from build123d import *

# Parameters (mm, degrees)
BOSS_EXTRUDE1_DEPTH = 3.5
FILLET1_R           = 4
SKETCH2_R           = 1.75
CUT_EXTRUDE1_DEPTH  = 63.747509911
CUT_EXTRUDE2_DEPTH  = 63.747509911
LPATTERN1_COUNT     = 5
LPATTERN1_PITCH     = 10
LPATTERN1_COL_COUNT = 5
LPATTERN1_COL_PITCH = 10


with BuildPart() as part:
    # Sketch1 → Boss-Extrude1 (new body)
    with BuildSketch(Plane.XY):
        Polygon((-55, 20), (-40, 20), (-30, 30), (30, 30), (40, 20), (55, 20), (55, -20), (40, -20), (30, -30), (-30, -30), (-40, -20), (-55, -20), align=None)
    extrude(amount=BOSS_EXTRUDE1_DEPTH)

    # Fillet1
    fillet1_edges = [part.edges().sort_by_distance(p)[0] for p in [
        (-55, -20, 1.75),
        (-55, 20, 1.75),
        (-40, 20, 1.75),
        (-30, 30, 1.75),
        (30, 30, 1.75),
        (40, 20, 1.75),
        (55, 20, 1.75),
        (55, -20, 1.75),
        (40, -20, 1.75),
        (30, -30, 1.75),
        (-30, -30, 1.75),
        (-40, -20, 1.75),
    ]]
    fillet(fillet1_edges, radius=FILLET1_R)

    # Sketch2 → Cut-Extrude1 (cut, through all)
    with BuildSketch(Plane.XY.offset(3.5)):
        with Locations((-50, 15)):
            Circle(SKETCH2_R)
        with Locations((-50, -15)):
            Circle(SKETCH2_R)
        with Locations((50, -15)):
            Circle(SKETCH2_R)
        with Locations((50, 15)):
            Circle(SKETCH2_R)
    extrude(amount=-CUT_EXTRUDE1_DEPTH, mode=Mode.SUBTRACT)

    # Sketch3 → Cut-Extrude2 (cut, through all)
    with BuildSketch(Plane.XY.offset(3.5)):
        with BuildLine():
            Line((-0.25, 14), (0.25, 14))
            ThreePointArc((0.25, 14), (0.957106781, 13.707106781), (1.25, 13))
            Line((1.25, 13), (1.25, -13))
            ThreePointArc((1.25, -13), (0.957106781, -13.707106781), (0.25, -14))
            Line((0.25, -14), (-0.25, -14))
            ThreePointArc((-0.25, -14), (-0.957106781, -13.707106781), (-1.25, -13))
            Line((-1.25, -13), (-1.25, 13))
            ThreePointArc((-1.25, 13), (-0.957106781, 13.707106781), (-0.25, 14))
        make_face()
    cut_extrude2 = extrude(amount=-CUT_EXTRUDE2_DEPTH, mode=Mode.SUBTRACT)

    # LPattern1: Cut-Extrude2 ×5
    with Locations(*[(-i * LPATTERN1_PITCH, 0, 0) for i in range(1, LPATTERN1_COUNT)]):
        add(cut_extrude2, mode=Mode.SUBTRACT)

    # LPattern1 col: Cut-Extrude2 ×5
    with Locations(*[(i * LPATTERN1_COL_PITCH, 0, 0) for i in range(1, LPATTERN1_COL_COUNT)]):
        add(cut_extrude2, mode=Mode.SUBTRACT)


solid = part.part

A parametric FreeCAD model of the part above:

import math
import FreeCAD as App
import Part
import Sketcher
Q = App.Units.Quantity


def edges_at(feature, points):
    """Names of the edges that pass closest to the given points."""
    edges = feature.Shape.Edges
    near = lambda p: min(range(len(edges)), key=lambda i: edges[i].distToShape(Part.Vertex(*p))[0])
    return sorted({f"Edge{near(p) + 1}" for p in points})


def add_polygon(sketch, points):
    """Adds a closed chain of lines whose ends are joined by coincident constraints."""
    first, n = sketch.GeometryCount, len(points)
    for a, b in zip(points, points[1:] + points[:1]):
        sketch.addGeometry(Part.LineSegment(App.Vector(*a, 0), App.Vector(*b, 0)), False)
    for i in range(n):
        sketch.addConstraint(Sketcher.Constraint("Coincident", first + i, 2, first + (i + 1) % n, 1))

doc = App.newDocument("Part")
body = doc.addObject("PartDesign::Body", "Body")

# Sketch on XY plane
sketch1 = body.newObject("Sketcher::SketchObject", "Sketch")
sketch1.AttachmentSupport = (doc.getObject("XY_Plane"), [""])
sketch1.MapMode = "FlatFace"
add_polygon(sketch1, [(-40, 20), (-55, 20), (-55, -20), (-40, -20), (-30, -30), (30, -30), (40, -20), (55, -20), (55, 20), (40, 20), (30, 30), (-30, 30)])  # lines 0-11
sketch1.addConstraint(Sketcher.Constraint("Horizontal", 0))
sketch1.addConstraint(Sketcher.Constraint("Vertical", 1))
sketch1.addConstraint(Sketcher.Constraint("Horizontal", 2))
sketch1.addConstraint(Sketcher.Constraint("Horizontal", 4))
sketch1.addConstraint(Sketcher.Constraint("Horizontal", 6))
sketch1.addConstraint(Sketcher.Constraint("Vertical", 7))
sketch1.addConstraint(Sketcher.Constraint("Horizontal", 8))
sketch1.addConstraint(Sketcher.Constraint("Horizontal", 10))
sketch1.addConstraint(Sketcher.Constraint("Symmetric", 0, 2, 6, 2, -1, 1))
sketch1.addConstraint(Sketcher.Constraint("Symmetric", 2, 2, 8, 2, -1, 1))
sketch1.addConstraint(Sketcher.Constraint("Symmetric", 3, 2, 9, 2, -1, 1))
sketch1.addConstraint(Sketcher.Constraint("Symmetric", 2, 2, 5, 2, -2))
sketch1.addConstraint(Sketcher.Constraint("Perpendicular", 3, 5))
sketch1.addConstraint(Sketcher.Constraint("Perpendicular", 9, 11))
sketch1.addConstraint(Sketcher.Constraint("Vertical", 4, 2, 9, 2))
sketch1.addConstraint(Sketcher.Constraint("Vertical", 3, 2, 10, 2))
sketch1.addConstraint(Sketcher.Constraint("DistanceX", 0, 2, 0, 1, Q("15 mm")))
sketch1.addConstraint(Sketcher.Constraint("DistanceX", 4, 1, 4, 2, Q("60 mm")))
sketch1.addConstraint(Sketcher.Constraint("DistanceY", 1, 2, 1, 1, Q("40 mm")))
sketch1.addConstraint(Sketcher.Constraint("DistanceX", 0, 2, -1, 1, Q("55 mm")))
pad1 = body.newObject("PartDesign::Pad", "Pad")
pad1.Profile = sketch1
pad1.Length = 3.5
doc.recompute()

fillet = body.newObject("PartDesign::Fillet", "Fillet")
fillet.Base = (pad1, edges_at(pad1, [
    (-55, -20, 1.75),
    (-55, 20, 1.75),
    (-40, 20, 1.75),
    (-30, 30, 1.75),
    (30, 30, 1.75),
    (40, 20, 1.75),
    (55, 20, 1.75),
    (55, -20, 1.75),
    (40, -20, 1.75),
    (30, -30, 1.75),
    (-30, -30, 1.75),
    (-40, -20, 1.75),
]))
fillet.Radius = 4

# Sketch on XY plane
sketch2 = body.newObject("Sketcher::SketchObject", "Sketch001")
sketch2.AttachmentSupport = (doc.getObject("XY_Plane"), [""])
sketch2.MapMode = "FlatFace"
sketch2.AttachmentOffset = App.Placement(App.Vector(0, 0, 3.5), App.Rotation())
sketch2.addGeometry(Part.Circle(App.Vector(-50, 15, 0), App.Vector(0, 0, 1), 1.8), False)
sketch2.addGeometry(Part.Circle(App.Vector(-50, -15, 0), App.Vector(0, 0, 1), 1.8), False)
sketch2.addGeometry(Part.Circle(App.Vector(50, -15, 0), App.Vector(0, 0, 1), 1.8), False)
sketch2.addGeometry(Part.Circle(App.Vector(50, 15, 0), App.Vector(0, 0, 1), 1.8), False)
sketch2.addConstraint(Sketcher.Constraint("Equal", 0, 1))
sketch2.addConstraint(Sketcher.Constraint("Equal", 1, 2))
sketch2.addConstraint(Sketcher.Constraint("Equal", 2, 3))
sketch2.addConstraint(Sketcher.Constraint("Symmetric", 0, 3, 2, 3, -1, 1))
sketch2.addConstraint(Sketcher.Constraint("Symmetric", 1, 3, 3, 3, -1, 1))
sketch2.addConstraint(Sketcher.Constraint("Symmetric", 1, 3, 2, 3, -2))
sketch2.addConstraint(Sketcher.Constraint("Diameter", 0, Q("3.5 mm")))
sketch2.addConstraint(Sketcher.Constraint("DistanceX", 0, 3, -1, 1, Q("50 mm")))
sketch2.addConstraint(Sketcher.Constraint("DistanceY", -1, 1, 0, 3, Q("15 mm")))
pocket1 = body.newObject("PartDesign::Pocket", "Pocket")
pocket1.Profile = sketch2
pocket1.Type = "ThroughAll"

# Sketch on XY plane
sketch3 = body.newObject("Sketcher::SketchObject", "Sketch002")
sketch3.AttachmentSupport = (doc.getObject("XY_Plane"), [""])
sketch3.MapMode = "FlatFace"
sketch3.AttachmentOffset = App.Placement(App.Vector(0, 0, 3.5), App.Rotation())
sketch3.addGeometry(Part.LineSegment(App.Vector(0.2, 14, 0), App.Vector(-0.2, 14, 0)), False)
sketch3.addGeometry(Part.ArcOfCircle(Part.Circle(App.Vector(-0.2, 13, 0), App.Vector(0, 0, 1), 1), math.radians(90), math.radians(180)), False)
sketch3.addGeometry(Part.LineSegment(App.Vector(-1.2, 13, 0), App.Vector(-1.2, -13, 0)), False)
sketch3.addGeometry(Part.ArcOfCircle(Part.Circle(App.Vector(-0.2, -13, 0), App.Vector(0, 0, 1), 1), math.radians(-180), math.radians(-90)), False)
sketch3.addGeometry(Part.LineSegment(App.Vector(-0.2, -14, 0), App.Vector(0.2, -14, 0)), False)
sketch3.addGeometry(Part.ArcOfCircle(Part.Circle(App.Vector(0.2, -13, 0), App.Vector(0, 0, 1), 1), math.radians(-90), math.radians(0)), False)
sketch3.addGeometry(Part.LineSegment(App.Vector(1.2, -13, 0), App.Vector(1.2, 13, 0)), False)
sketch3.addGeometry(Part.ArcOfCircle(Part.Circle(App.Vector(0.2, 13, 0), App.Vector(0, 0, 1), 1), math.radians(0), math.radians(90)), False)
sketch3.addConstraint(Sketcher.Constraint("Tangent", 0, 2, 1, 1))
sketch3.addConstraint(Sketcher.Constraint("Tangent", 1, 2, 2, 1))
sketch3.addConstraint(Sketcher.Constraint("Tangent", 2, 2, 3, 1))
sketch3.addConstraint(Sketcher.Constraint("Tangent", 3, 2, 4, 1))
sketch3.addConstraint(Sketcher.Constraint("Tangent", 4, 2, 5, 1))
sketch3.addConstraint(Sketcher.Constraint("Tangent", 5, 2, 6, 1))
sketch3.addConstraint(Sketcher.Constraint("Tangent", 6, 2, 7, 1))
sketch3.addConstraint(Sketcher.Constraint("Tangent", 7, 2, 0, 1))
sketch3.addConstraint(Sketcher.Constraint("Horizontal", 0))
sketch3.addConstraint(Sketcher.Constraint("Vertical", 2))
sketch3.addConstraint(Sketcher.Constraint("Horizontal", 4))
sketch3.addConstraint(Sketcher.Constraint("Vertical", 6))
sketch3.addConstraint(Sketcher.Constraint("Equal", 1, 3))
sketch3.addConstraint(Sketcher.Constraint("Equal", 3, 5))
sketch3.addConstraint(Sketcher.Constraint("Equal", 5, 7))
sketch3.addConstraint(Sketcher.Constraint("Symmetric", 1, 3, 5, 3, -1, 1))
sketch3.addConstraint(Sketcher.Constraint("Radius", 1, Q("1 mm")))
sketch3.addConstraint(Sketcher.Constraint("DistanceY", 2, 2, 2, 1, Q("26 mm")))
sketch3.addConstraint(Sketcher.Constraint("DistanceX", 0, 2, 0, 1, Q("0.5 mm")))
pocket2 = body.newObject("PartDesign::Pocket", "Pocket001")
pocket2.Profile = sketch3
pocket2.Type = "ThroughAll"
doc.recompute()

linearpattern = body.newObject("PartDesign::LinearPattern", "LinearPattern")
linearpattern.Originals = [pocket2]
linearpattern.Direction = (doc.getObject("X_Axis"), [""])
linearpattern.Mode = "offset"
linearpattern.Offset = 10
linearpattern.Occurrences = 5
linearpattern.Reversed = True
body.Tip = linearpattern
doc.recompute()

linearpattern2 = body.newObject("PartDesign::LinearPattern", "LinearPattern001")
linearpattern2.Originals = [pocket2]
linearpattern2.Direction = (doc.getObject("X_Axis"), [""])
linearpattern2.Mode = "offset"
linearpattern2.Offset = 10
linearpattern2.Occurrences = 5
body.Tip = linearpattern2

doc.recompute()
